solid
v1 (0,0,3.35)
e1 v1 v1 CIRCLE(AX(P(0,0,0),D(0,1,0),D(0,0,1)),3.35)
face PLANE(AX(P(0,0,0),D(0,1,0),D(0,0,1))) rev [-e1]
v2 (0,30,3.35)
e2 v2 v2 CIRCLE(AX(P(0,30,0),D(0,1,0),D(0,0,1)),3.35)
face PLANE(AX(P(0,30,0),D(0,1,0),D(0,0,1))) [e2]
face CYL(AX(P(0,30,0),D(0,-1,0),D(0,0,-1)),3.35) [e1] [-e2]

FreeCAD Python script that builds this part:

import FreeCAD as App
import Part
import Sketcher
from FreeCAD import Vector

doc = App.newDocument("Part")
params = doc.addObject("Spreadsheet::Sheet", "Params")
for row, (alias, value) in enumerate([
    ("sketch1_diameter", "6.7 mm"),
    ("pad1_length", "30 mm"),
], start=1):
    params.set(f"A{row}", alias)
    params.set(f"B{row}", "=" + value)
    params.setAlias(f"B{row}", alias)

body = doc.addObject("PartDesign::Body", "Body")

# Sketch on XZ plane
sketch1 = body.newObject("Sketcher::SketchObject", "Sketch")
sketch1.AttachmentSupport = (doc.getObject("XZ_Plane"), [""])
sketch1.MapMode = "FlatFace"
sketch1.addGeometry(Part.Circle(Vector(0, 0, 0), Vector(0, 0, 1), 3.4), False)
sketch1.addConstraint(Sketcher.Constraint("Coincident", 0, 3, -1, 1))
sketch1.addConstraint(Sketcher.Constraint("Diameter", 0, 6.7))
sketch1.setExpression("Constraints[1]", "Params.sketch1_diameter")
pad1 = body.newObject("PartDesign::Pad", "Pad")
pad1.Profile = sketch1
pad1.setExpression("Length", "Params.pad1_length")
pad1.Reversed = True

doc.recompute()
